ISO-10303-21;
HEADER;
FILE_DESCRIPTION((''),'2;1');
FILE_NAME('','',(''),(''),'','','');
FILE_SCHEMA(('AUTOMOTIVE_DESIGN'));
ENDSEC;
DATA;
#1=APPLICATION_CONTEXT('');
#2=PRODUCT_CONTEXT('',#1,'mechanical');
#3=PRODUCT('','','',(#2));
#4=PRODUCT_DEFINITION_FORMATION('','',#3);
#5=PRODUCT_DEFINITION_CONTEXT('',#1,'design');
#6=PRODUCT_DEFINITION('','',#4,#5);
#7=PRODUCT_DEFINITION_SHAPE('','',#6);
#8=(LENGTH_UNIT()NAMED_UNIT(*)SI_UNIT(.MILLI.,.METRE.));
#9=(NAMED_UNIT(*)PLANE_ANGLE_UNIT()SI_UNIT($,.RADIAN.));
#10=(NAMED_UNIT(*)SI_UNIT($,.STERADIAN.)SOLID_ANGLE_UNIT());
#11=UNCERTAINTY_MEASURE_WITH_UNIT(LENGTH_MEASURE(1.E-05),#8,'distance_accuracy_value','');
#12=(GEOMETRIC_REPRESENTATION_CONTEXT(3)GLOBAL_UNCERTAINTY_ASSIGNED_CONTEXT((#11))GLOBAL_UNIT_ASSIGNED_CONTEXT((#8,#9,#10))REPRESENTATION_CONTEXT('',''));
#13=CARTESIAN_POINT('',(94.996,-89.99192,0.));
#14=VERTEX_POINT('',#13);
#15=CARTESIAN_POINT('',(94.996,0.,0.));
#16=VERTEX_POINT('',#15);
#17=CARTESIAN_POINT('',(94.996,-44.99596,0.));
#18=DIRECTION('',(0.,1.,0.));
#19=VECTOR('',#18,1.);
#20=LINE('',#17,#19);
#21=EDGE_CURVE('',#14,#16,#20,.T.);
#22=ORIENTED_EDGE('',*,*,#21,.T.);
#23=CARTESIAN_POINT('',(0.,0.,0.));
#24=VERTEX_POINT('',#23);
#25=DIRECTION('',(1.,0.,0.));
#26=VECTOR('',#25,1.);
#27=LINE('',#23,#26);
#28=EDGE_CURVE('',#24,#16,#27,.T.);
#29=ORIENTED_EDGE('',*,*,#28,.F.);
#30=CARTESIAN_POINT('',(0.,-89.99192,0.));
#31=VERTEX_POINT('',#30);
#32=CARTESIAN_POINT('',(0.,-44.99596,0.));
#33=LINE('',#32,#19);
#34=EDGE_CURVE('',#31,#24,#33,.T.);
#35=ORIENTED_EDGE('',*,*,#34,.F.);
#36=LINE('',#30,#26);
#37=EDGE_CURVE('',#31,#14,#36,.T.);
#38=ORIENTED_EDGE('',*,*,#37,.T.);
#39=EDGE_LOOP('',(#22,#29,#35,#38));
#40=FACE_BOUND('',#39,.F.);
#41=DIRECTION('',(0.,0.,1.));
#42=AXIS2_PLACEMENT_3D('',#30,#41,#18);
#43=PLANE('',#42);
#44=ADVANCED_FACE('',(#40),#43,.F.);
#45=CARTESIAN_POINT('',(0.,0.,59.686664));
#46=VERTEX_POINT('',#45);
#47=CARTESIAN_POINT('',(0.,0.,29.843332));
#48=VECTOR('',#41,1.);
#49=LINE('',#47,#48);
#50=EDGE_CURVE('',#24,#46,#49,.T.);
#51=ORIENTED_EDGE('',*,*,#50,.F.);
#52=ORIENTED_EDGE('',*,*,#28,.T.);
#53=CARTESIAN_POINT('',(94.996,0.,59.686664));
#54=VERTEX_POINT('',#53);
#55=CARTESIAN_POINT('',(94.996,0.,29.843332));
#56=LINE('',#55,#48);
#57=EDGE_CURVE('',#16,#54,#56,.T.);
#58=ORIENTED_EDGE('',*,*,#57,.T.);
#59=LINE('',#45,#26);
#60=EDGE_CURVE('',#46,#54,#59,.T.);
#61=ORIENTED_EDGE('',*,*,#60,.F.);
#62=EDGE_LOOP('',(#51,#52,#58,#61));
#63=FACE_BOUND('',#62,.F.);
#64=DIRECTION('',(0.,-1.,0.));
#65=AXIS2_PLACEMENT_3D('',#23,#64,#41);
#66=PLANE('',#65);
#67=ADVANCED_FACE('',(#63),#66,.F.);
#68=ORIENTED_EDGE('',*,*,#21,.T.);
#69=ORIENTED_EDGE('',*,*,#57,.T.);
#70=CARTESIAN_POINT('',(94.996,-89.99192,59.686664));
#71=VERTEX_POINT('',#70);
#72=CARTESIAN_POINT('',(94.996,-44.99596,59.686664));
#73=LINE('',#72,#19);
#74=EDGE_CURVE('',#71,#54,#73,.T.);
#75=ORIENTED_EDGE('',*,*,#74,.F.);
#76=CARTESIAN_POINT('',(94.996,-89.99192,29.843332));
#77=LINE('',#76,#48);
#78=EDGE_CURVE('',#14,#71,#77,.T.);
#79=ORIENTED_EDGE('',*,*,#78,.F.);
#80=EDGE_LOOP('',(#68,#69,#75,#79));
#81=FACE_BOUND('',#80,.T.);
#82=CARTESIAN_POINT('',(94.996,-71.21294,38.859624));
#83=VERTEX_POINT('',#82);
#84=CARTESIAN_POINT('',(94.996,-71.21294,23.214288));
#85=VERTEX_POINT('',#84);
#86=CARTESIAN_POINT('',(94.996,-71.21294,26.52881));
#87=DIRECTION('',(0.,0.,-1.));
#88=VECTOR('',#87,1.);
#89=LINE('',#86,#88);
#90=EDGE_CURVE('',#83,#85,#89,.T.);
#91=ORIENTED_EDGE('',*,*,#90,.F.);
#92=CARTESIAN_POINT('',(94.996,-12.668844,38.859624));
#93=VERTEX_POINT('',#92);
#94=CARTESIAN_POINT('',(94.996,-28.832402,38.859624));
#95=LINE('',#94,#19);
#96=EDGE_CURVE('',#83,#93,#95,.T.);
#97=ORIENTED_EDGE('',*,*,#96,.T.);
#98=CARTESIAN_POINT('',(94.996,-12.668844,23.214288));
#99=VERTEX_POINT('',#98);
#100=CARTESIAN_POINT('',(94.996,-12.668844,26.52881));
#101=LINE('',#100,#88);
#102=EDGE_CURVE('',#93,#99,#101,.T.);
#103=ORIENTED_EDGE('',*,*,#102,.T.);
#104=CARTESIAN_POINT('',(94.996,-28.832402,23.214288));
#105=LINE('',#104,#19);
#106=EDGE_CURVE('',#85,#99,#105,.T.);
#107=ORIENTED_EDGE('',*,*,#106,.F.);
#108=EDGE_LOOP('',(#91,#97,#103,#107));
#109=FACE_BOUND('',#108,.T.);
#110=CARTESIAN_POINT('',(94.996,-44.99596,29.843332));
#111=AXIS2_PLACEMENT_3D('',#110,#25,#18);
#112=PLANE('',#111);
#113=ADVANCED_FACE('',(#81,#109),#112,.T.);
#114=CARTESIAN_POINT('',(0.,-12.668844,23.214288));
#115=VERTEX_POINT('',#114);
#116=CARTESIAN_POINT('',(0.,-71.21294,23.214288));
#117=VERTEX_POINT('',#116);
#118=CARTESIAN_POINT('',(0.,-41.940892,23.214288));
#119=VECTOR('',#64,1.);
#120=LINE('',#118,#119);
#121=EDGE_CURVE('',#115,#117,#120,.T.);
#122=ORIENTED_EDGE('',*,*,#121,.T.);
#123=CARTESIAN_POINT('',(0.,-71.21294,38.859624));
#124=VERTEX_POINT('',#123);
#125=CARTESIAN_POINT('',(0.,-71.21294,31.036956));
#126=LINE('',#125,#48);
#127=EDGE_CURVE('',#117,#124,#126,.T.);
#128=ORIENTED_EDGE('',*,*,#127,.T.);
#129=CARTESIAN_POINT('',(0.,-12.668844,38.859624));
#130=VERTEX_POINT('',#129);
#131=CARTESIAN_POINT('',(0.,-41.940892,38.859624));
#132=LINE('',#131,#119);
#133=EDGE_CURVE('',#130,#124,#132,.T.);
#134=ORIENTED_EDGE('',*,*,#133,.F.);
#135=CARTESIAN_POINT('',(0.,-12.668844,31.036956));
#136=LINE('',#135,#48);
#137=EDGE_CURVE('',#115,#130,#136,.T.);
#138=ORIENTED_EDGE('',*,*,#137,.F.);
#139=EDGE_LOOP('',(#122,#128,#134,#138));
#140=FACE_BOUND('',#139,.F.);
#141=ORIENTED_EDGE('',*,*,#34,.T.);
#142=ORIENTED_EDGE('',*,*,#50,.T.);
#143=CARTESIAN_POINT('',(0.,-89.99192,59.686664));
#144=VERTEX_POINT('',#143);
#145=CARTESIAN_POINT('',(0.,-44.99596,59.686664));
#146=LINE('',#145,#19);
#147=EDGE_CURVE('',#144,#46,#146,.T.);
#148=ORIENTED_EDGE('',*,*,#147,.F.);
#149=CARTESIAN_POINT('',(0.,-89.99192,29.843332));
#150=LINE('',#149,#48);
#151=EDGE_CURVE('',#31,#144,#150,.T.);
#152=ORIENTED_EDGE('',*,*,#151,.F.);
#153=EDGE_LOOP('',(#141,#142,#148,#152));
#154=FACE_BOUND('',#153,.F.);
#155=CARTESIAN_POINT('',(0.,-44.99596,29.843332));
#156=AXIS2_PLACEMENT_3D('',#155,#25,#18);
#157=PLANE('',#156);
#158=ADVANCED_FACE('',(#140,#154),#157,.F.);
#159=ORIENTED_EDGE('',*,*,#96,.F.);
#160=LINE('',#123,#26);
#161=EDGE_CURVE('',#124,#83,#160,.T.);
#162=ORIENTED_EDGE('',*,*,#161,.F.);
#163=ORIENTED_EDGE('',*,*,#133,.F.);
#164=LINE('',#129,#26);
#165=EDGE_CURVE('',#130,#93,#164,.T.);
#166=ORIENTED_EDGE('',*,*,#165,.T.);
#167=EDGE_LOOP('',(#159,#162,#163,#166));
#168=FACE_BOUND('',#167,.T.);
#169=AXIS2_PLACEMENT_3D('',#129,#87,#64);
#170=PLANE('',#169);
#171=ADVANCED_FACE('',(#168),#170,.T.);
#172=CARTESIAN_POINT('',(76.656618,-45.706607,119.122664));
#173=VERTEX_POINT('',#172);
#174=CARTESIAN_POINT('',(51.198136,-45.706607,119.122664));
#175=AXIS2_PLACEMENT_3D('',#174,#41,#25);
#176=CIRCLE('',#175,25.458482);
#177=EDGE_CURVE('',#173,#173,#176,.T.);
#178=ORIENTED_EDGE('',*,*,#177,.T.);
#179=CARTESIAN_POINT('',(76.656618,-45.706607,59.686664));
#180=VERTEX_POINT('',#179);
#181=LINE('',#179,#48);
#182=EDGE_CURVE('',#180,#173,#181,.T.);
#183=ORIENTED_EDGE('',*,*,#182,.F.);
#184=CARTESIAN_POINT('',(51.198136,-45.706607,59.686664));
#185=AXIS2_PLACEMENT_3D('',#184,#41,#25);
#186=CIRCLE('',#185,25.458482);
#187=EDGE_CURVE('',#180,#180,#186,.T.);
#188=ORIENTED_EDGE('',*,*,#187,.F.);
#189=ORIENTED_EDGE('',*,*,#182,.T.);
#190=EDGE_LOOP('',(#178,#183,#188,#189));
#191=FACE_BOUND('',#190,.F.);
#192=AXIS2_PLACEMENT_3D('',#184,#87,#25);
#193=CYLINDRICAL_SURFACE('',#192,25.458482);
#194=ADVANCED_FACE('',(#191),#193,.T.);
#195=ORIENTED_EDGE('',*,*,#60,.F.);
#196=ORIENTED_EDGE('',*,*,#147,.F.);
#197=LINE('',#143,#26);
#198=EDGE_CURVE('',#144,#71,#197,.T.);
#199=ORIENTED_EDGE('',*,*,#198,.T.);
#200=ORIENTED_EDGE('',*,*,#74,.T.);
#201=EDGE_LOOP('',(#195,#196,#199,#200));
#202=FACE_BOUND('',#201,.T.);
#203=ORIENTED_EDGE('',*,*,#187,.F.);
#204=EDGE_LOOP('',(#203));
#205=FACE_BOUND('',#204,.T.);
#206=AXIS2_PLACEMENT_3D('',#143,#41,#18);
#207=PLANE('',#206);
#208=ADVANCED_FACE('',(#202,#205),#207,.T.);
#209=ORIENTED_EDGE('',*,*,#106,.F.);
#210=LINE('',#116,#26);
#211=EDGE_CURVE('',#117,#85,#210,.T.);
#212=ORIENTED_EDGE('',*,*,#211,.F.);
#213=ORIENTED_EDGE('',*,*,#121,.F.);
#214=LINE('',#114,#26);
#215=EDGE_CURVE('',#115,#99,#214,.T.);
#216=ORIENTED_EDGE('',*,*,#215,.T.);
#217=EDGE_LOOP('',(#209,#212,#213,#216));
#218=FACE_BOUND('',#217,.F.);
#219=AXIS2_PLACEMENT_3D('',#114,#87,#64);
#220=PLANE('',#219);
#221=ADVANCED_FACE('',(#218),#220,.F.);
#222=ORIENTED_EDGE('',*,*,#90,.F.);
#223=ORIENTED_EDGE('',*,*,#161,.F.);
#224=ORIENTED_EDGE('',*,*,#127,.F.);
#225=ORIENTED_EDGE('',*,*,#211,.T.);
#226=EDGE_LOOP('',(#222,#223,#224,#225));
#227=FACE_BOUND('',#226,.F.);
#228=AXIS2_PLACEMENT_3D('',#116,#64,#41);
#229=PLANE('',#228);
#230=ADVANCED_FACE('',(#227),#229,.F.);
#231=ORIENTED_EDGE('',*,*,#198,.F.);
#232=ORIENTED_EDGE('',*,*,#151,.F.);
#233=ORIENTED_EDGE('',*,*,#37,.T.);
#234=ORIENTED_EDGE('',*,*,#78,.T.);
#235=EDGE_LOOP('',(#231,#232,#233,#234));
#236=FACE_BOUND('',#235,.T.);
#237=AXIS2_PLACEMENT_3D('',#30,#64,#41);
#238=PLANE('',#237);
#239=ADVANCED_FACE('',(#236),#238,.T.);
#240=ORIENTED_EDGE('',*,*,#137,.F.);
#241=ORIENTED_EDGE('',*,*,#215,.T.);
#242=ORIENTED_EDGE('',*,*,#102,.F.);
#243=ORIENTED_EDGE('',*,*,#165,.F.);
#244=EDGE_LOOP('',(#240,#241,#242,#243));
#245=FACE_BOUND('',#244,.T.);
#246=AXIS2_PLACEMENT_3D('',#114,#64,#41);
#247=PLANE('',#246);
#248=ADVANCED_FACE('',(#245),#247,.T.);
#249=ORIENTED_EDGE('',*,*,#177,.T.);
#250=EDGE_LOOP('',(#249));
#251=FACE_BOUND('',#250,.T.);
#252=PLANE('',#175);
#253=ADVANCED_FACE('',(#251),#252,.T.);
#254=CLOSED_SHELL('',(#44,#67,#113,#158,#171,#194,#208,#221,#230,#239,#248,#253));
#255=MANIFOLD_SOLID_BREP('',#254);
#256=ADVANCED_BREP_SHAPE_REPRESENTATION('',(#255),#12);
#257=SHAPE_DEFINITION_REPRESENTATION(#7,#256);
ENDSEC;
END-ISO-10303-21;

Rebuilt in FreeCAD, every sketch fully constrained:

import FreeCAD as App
import Part
import Sketcher
from FreeCAD import Vector
Q = App.Units.Quantity

doc = App.newDocument("Part")
body = doc.addObject("PartDesign::Body", "Body")

# Sketch on YZ plane
sketch1 = body.newObject("Sketcher::SketchObject", "Sketch")
sketch1.AttachmentSupport = (doc.getObject("YZ_Plane"), [""])
sketch1.MapMode = "FlatFace"
sketch1.addGeometry([
    Part.LineSegment(Vector(-90, 60, 0), Vector(-90, 0, 0)),
    Part.LineSegment(Vector(-90, 0, 0), Vector(0, 0, 0)),
    Part.LineSegment(Vector(0, 0, 0), Vector(0, 60, 0)),
    Part.LineSegment(Vector(0, 60, 0), Vector(-90, 60, 0)),
], False)
sketch1.addConstraint([
    Sketcher.Constraint("Coincident", 0, 2, 1, 1),
    Sketcher.Constraint("Coincident", 1, 2, 2, 1),
    Sketcher.Constraint("Coincident", 2, 2, 3, 1),
    Sketcher.Constraint("Coincident", 3, 2, 0, 1),
    Sketcher.Constraint("Vertical", 0),
    Sketcher.Constraint("Horizontal", 1),
    Sketcher.Constraint("Vertical", 2),
    Sketcher.Constraint("Horizontal", 3),
    Sketcher.Constraint("Coincident", 1, 2, -1, 1),
    Sketcher.Constraint("DistanceX", 1, 1, 1, 2, Q("89.99192 mm")),
    Sketcher.Constraint("DistanceY", 0, 2, 0, 1, Q("59.686664 mm")),
])
pad1 = body.newObject("PartDesign::Pad", "Pad")
pad1.Profile = sketch1
pad1.Length = Q("3.74 in")

# Sketch on XY plane
sketch2 = body.newObject("Sketcher::SketchObject", "Sketch001")
sketch2.AttachmentSupport = (doc.getObject("XY_Plane"), [""])
sketch2.MapMode = "FlatFace"
sketch2.AttachmentOffset = App.Placement(Vector(0, 0, 59.686664), App.Rotation())
sketch2.addGeometry(Part.Circle(Vector(51, -46, 0), Vector(0, 0, 1), 25), False)
sketch2.addConstraint([
    Sketcher.Constraint("Diameter", 0, Q("50.916964 mm")),
    Sketcher.Constraint("DistanceX", -1, 1, 0, 3, Q("51.198136 mm")),
    Sketcher.Constraint("DistanceY", 0, 3, -1, 1, Q("45.706607 mm")),
])
pad2 = body.newObject("PartDesign::Pad", "Pad001")
pad2.Profile = sketch2
pad2.Length = Q("2.34 in")

# Sketch on YZ plane
sketch3 = body.newObject("Sketcher::SketchObject", "Sketch002")
sketch3.AttachmentSupport = (doc.getObject("YZ_Plane"), [""])
sketch3.MapMode = "FlatFace"
sketch3.addGeometry([
    Part.LineSegment(Vector(-13, 39, 0), Vector(-13, 23, 0)),
    Part.LineSegment(Vector(-13, 23, 0), Vector(-71, 23, 0)),
    Part.LineSegment(Vector(-71, 23, 0), Vector(-71, 39, 0)),
    Part.LineSegment(Vector(-71, 39, 0), Vector(-13, 39, 0)),
], False)
sketch3.addConstraint([
    Sketcher.Constraint("Coincident", 0, 2, 1, 1),
    Sketcher.Constraint("Coincident", 1, 2, 2, 1),
    Sketcher.Constraint("Coincident", 2, 2, 3, 1),
    Sketcher.Constraint("Coincident", 3, 2, 0, 1),
    Sketcher.Constraint("Vertical", 0),
    Sketcher.Constraint("Horizontal", 1),
    Sketcher.Constraint("Vertical", 2),
    Sketcher.Constraint("Horizontal", 3),
    Sketcher.Constraint("DistanceX", 1, 2, 1, 1, Q("58.544096 mm")),
    Sketcher.Constraint("DistanceY", 0, 2, 0, 1, Q("15.645336 mm")),
    Sketcher.Constraint("DistanceY", -1, 1, 0, 2, Q("23.214288 mm")),
    Sketcher.Constraint("DistanceX", 1, 2, -1, 1, Q("71.21294 mm")),
])
pocket1 = body.newObject("PartDesign::Pocket", "Pocket")
pocket1.Profile = sketch3
pocket1.Length = Q("4.57 in")
pocket1.Reversed = True

doc.recompute()
